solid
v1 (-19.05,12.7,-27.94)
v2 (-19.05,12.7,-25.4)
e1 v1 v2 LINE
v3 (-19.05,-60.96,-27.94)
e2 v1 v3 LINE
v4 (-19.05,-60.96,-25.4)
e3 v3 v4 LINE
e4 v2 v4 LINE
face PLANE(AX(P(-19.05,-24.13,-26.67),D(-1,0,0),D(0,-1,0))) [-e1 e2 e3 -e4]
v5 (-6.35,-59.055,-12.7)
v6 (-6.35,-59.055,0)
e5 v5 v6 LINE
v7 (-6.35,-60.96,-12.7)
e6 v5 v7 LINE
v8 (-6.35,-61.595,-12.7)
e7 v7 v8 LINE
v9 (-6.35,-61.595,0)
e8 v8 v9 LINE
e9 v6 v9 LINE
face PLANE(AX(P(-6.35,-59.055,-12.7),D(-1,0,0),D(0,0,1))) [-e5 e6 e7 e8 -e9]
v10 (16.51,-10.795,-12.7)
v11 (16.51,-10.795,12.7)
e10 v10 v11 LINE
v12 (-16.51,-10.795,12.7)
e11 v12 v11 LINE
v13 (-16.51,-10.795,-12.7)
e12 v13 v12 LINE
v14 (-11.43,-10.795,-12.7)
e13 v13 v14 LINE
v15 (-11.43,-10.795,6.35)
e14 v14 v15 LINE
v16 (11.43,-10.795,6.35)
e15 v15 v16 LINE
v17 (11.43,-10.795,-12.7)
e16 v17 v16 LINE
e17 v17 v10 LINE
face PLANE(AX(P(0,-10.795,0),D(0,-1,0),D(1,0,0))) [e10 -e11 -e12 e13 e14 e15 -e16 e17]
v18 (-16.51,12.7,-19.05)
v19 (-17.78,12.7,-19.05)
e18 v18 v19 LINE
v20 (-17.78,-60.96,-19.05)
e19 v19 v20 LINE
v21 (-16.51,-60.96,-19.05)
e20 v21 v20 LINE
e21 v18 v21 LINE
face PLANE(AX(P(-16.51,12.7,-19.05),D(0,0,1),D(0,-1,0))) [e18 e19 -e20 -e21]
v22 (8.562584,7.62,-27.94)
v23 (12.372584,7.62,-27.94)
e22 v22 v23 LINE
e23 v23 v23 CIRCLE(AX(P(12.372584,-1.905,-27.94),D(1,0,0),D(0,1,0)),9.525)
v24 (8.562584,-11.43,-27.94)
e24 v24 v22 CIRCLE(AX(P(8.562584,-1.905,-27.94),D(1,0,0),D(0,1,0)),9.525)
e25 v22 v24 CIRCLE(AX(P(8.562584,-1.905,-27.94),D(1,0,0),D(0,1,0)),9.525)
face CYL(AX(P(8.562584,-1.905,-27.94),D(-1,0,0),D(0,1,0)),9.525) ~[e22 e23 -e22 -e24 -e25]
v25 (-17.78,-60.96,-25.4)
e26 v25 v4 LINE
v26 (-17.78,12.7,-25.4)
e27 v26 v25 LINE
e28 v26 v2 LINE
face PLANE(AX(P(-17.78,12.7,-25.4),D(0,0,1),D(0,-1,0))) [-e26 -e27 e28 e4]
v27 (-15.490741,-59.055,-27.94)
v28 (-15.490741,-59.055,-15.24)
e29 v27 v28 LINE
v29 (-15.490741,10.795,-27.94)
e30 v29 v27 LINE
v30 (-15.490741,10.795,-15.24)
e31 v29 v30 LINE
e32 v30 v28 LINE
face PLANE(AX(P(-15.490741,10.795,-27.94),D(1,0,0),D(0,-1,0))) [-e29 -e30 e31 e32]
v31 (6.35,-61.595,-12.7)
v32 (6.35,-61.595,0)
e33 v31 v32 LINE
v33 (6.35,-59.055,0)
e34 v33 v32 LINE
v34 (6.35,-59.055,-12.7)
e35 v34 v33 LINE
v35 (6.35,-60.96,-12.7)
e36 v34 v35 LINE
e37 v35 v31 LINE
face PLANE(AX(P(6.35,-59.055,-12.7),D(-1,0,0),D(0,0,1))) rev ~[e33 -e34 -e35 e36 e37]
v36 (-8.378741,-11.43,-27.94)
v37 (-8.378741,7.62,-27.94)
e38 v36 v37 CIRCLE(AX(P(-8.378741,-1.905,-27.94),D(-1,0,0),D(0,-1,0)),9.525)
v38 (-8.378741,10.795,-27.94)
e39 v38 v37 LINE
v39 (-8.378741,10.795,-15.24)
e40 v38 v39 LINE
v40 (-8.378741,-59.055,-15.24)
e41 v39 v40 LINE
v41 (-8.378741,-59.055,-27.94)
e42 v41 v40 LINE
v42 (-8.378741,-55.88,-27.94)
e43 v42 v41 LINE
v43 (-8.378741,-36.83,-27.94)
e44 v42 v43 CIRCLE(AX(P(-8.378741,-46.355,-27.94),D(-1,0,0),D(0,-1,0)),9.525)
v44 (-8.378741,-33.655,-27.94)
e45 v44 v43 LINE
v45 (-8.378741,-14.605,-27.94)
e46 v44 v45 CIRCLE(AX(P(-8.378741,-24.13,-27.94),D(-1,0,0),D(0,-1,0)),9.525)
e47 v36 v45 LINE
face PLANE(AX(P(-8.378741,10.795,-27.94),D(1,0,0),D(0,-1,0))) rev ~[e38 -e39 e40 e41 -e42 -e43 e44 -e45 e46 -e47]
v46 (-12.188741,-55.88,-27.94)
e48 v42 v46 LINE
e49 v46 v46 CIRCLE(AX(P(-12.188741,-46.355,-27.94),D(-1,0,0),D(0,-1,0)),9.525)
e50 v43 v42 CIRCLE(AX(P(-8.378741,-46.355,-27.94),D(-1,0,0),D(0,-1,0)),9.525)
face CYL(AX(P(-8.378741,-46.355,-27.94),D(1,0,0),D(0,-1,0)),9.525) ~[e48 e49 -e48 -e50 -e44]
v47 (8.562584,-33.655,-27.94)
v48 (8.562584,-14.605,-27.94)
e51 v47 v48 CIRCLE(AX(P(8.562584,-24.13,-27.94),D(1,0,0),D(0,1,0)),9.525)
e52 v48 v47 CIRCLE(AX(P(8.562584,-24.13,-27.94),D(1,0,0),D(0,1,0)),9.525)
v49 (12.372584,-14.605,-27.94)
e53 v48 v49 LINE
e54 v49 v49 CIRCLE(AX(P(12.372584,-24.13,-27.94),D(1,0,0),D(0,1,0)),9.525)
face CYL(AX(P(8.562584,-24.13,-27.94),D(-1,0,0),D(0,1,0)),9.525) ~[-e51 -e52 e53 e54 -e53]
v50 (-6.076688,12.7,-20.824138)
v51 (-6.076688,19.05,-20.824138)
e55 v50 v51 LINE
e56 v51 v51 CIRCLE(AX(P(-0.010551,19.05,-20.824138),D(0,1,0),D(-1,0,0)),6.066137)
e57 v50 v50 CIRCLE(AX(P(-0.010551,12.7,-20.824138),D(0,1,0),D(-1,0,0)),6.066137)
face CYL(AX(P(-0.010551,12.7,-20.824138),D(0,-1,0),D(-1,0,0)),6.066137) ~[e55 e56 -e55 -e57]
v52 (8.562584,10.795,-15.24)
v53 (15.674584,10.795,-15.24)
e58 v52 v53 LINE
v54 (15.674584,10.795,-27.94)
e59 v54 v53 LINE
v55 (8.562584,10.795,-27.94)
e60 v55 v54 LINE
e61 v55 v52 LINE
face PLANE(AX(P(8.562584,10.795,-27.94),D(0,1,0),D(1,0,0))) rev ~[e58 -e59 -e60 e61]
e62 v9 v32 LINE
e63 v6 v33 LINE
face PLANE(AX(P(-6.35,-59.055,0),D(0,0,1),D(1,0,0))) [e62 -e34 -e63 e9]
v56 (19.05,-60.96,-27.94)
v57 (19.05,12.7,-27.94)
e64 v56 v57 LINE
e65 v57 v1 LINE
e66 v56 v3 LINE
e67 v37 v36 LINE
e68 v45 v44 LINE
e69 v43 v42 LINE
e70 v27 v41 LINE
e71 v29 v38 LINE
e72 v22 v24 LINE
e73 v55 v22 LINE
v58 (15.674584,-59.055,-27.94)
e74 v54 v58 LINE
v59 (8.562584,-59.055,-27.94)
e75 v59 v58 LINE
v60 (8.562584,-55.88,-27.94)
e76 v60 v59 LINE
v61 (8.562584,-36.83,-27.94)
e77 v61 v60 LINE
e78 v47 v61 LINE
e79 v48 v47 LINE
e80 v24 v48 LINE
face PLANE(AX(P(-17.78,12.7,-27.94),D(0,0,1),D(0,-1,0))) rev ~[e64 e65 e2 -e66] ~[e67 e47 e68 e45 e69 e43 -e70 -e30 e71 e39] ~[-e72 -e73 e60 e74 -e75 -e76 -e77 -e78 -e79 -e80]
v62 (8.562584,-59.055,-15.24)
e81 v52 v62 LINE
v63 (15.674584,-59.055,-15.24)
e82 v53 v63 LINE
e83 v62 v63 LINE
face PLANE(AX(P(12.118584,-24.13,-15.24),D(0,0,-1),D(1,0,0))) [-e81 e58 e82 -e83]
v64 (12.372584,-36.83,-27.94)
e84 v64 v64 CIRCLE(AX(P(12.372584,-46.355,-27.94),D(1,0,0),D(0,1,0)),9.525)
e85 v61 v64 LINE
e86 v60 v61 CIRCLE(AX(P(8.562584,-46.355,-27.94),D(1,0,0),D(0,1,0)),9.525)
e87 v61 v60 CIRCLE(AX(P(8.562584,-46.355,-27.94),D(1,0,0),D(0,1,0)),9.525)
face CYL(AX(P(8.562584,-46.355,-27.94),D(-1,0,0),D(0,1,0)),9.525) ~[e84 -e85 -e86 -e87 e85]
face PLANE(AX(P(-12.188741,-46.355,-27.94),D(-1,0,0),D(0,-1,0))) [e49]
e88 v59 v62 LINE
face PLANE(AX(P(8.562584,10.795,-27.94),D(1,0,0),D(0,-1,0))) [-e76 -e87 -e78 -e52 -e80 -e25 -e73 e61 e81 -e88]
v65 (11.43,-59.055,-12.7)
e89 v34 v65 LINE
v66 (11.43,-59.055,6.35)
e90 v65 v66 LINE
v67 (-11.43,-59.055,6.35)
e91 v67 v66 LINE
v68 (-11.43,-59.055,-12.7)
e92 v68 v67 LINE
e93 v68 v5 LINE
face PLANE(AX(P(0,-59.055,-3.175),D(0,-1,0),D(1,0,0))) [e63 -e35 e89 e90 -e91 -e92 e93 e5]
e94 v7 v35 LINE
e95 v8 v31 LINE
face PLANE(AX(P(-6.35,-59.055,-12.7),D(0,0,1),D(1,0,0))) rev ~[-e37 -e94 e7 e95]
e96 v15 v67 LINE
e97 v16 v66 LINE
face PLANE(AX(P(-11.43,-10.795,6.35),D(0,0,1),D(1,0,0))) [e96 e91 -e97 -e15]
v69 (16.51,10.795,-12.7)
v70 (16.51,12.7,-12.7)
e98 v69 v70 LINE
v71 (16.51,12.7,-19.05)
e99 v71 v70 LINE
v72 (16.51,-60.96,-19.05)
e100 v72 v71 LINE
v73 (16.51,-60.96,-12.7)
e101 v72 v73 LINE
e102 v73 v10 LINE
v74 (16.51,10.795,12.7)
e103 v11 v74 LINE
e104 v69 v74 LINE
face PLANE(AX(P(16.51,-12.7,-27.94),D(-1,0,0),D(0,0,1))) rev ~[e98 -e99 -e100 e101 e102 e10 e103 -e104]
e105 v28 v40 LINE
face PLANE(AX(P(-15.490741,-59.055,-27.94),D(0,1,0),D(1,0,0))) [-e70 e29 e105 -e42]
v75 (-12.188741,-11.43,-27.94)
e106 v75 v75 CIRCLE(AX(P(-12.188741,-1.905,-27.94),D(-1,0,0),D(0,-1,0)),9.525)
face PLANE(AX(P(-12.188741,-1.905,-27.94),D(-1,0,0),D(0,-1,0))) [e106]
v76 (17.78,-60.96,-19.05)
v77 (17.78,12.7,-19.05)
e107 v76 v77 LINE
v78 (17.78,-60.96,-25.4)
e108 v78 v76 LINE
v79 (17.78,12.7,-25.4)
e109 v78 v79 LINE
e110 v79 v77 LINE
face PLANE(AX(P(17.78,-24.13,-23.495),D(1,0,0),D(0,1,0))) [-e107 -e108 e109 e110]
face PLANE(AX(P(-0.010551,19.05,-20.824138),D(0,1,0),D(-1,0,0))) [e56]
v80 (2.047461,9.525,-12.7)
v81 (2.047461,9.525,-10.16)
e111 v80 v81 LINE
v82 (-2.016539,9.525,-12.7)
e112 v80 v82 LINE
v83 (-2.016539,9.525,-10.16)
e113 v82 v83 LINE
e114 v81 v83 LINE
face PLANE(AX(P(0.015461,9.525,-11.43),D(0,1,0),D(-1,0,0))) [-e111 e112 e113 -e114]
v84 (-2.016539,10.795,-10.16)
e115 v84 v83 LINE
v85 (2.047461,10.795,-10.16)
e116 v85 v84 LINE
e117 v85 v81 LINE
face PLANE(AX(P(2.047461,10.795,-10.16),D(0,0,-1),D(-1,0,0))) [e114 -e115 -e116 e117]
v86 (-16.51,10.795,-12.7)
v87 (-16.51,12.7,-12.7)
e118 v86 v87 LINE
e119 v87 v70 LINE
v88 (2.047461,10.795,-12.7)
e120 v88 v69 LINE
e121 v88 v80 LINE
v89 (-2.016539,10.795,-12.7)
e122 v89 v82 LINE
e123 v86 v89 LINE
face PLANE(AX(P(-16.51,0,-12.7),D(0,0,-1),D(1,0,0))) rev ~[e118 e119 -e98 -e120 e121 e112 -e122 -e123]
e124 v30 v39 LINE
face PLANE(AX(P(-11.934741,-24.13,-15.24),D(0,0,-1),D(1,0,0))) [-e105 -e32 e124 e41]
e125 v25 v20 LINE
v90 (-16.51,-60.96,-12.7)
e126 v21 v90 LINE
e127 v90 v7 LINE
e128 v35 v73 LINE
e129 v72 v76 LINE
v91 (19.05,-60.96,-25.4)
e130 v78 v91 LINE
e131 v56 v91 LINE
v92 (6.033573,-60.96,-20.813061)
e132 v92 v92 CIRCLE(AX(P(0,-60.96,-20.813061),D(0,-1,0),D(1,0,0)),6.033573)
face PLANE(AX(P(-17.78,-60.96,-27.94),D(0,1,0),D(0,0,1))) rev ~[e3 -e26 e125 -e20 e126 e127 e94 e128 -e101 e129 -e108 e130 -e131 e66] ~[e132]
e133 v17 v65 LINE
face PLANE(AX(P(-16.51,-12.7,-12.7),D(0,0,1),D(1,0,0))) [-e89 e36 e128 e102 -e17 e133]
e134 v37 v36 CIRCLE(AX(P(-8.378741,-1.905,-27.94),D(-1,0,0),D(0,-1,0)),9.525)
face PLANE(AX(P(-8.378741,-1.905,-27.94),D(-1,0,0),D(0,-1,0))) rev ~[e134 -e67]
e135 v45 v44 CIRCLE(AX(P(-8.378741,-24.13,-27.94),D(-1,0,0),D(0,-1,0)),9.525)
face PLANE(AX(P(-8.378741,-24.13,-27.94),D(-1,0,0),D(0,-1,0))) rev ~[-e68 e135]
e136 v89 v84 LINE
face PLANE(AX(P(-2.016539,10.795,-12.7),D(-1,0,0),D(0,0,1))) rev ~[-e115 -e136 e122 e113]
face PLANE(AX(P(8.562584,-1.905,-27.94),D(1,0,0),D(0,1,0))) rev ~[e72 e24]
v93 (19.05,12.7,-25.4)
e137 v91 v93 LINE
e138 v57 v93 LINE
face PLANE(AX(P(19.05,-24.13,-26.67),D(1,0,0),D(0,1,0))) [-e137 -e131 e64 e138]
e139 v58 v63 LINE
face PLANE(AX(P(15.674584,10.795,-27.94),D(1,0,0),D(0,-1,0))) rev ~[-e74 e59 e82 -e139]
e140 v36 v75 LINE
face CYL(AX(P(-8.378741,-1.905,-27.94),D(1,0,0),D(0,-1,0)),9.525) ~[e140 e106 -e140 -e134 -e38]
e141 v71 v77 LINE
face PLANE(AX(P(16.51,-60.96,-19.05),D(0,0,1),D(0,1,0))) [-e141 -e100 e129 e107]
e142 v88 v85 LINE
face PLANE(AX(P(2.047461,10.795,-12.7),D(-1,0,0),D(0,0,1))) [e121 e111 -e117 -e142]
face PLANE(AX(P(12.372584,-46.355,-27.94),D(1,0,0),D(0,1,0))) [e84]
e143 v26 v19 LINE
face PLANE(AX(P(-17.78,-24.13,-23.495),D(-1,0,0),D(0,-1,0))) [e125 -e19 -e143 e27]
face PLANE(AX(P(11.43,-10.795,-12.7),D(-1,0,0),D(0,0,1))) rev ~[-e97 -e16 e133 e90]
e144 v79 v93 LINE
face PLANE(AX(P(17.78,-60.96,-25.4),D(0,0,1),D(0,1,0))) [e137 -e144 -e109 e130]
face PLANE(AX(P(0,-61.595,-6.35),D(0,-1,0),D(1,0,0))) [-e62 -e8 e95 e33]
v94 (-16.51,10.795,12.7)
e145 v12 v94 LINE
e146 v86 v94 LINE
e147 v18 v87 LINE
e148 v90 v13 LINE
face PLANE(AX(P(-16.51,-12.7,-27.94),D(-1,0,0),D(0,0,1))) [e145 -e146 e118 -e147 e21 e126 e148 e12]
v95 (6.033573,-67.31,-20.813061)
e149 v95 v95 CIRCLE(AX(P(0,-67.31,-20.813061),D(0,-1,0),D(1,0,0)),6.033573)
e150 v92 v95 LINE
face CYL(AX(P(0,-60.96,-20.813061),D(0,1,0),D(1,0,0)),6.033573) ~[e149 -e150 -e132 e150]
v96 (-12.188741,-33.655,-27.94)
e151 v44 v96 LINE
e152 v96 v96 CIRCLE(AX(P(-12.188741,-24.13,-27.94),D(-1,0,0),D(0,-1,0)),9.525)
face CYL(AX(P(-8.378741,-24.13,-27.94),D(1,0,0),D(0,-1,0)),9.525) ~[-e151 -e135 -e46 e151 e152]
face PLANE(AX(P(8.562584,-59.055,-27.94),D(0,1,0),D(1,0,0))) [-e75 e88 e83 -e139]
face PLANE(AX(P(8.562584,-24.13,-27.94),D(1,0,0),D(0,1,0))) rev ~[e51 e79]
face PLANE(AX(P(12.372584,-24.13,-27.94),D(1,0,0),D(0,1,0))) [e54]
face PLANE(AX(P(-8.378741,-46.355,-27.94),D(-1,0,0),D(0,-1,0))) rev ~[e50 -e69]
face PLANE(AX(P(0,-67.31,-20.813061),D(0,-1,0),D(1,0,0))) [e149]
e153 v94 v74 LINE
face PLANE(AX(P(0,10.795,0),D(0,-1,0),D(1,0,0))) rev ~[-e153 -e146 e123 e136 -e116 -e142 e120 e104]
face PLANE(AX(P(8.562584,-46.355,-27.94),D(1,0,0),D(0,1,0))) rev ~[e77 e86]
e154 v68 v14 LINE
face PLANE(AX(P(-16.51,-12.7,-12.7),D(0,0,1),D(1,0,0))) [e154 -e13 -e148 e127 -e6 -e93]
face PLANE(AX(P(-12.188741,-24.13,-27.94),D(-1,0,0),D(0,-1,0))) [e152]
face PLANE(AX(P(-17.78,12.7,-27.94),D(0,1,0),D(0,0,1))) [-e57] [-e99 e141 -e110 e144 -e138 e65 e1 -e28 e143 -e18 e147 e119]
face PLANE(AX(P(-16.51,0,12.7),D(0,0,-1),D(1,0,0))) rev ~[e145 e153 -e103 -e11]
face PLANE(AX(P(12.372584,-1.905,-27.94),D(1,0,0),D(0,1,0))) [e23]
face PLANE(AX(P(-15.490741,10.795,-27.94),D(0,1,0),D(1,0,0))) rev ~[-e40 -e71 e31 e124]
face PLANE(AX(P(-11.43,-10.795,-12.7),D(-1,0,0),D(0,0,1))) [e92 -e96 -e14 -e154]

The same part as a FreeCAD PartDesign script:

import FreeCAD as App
import Part
import Sketcher

V = App.Vector
Q = App.Units.Quantity

doc = App.newDocument("Part")
params = doc.addObject("Spreadsheet::Sheet", "Params")
for row, (alias, value) in enumerate([
    ("sketch1_height", "1 in"),
    ("sketch1_width", "1.3 in"),
    ("pad1_length", "0.85 in"),
    ("sketch2_width", "0.9 in"),
    ("sketch2_height", "0.75 in"),
    ("pad2_length", "1.9 in"),
    ("sketch3_width", "1.3 in"),
    ("sketch3_height", "0.6 in"),
    ("pad3_length", "1 in"),
    ("sketch4_width", "1.3 in"),
    ("sketch4_height", "0.6 in"),
    ("pad4_length", "1.9 in"),
    ("sketch5_width", "0.5 in"),
    ("pad5_length", "0.1 in"),
    ("sketch6_width", "0.28 in"),
    ("sketch6_height", "2.75 in"),
    ("pocket1_length", "0.5 in"),
    ("pad6_length", "0.25 in"),
    ("sketch8_diameter", "0.75 in"),
    ("pad7_length", "0.15 in"),
    ("sketch9_diameter", "0.75 in"),
    ("pad8_length", "0.15 in"),
    ("sketch10_diameter", "0.75 in"),
    ("pad9_length", "0.15 in"),
    ("sketch11_diameter", "0.75 in"),
    ("pad10_length", "0.15 in"),
    ("sketch12_diameter", "0.75 in"),
    ("pad11_length", "0.15 in"),
    ("sketch13_diameter", "0.75 in"),
    ("pad12_length", "0.15 in"),
    ("pad13_length", "0.25 in"),
    ("sketch15_width", "2.9 in"),
    ("sketch15_height", "0.35 in"),
    ("pad14_length", "0.05 in"),
    ("sketch16_width", "2.9 in"),
    ("sketch16_height", "0.35 in"),
    ("pad15_length", "0.05 in"),
    ("sketch17_width", "2.9 in"),
    ("sketch17_height", "0.1 in"),
    ("pad16_length", "0.05 in"),
    ("sketch18_width", "2.9 in"),
    ("sketch18_height", "0.1 in"),
    ("pad17_length", "0.05 in"),
    ("sketch19_height", "0.1 in"),
    ("sketch19_width", "0.16 in"),
    ("pocket2_length", "0.05 in"),
], start=1):
    params.set(f"A{row}", alias)
    params.set(f"B{row}", "=" + value)
    params.setAlias(f"B{row}", alias)

body = doc.addObject("PartDesign::Body", "Body")

# Sketch on XZ plane
sketch1 = body.newObject("Sketcher::SketchObject", "Sketch")
sketch1.AttachmentSupport = (doc.getObject("XZ_Plane"), [""])
sketch1.MapMode = "FlatFace"
sketch1.addGeometry([
    Part.LineSegment(V(-16.51, 12.7, 0), V(-16.51, -12.7, 0)),
    Part.LineSegment(V(-16.51, -12.7, 0), V(16.51, -12.7, 0)),
    Part.LineSegment(V(16.51, -12.7, 0), V(16.51, 12.7, 0)),
    Part.LineSegment(V(16.51, 12.7, 0), V(-16.51, 12.7, 0)),
], False)
sketch1.addConstraint([
    Sketcher.Constraint("Coincident", 0, 2, 1, 1),
    Sketcher.Constraint("Coincident", 1, 2, 2, 1),
    Sketcher.Constraint("Coincident", 2, 2, 3, 1),
    Sketcher.Constraint("Coincident", 3, 2, 0, 1),
    Sketcher.Constraint("Vertical", 0),
    Sketcher.Constraint("Horizontal", 1),
    Sketcher.Constraint("Vertical", 2),
    Sketcher.Constraint("Horizontal", 3),
    Sketcher.Constraint("Symmetric", 0, 2, 2, 2, -1, 1),
    Sketcher.Constraint("DistanceY", 0, 2, 0, 1, Q("1 in")),
    Sketcher.Constraint("DistanceX", 1, 1, 1, 2, Q("1.3 in")),
])
sketch1.setExpression("Constraints[9]", "Params.sketch1_height")
sketch1.setExpression("Constraints[10]", "Params.sketch1_width")
pad1 = body.newObject("PartDesign::Pad", "Pad")
pad1.Profile = sketch1
pad1.setExpression("Length", "Params.pad1_length")
pad1.Midplane = True

# Sketch on XZ plane
sketch2 = body.newObject("Sketcher::SketchObject", "Sketch001")
sketch2.AttachmentSupport = (doc.getObject("XZ_Plane"), [""])
sketch2.MapMode = "FlatFace"
sketch2.AttachmentOffset = App.Placement(V(0, 0, 0.425 * 25.4), App.Rotation())
sketch2.addGeometry([
    Part.LineSegment(V(-11.43, 6.35, 0), V(-11.43, -12.7, 0)),
    Part.LineSegment(V(-11.43, -12.7, 0), V(11.43, -12.7, 0)),
    Part.LineSegment(V(11.43, -12.7, 0), V(11.43, 6.35, 0)),
    Part.LineSegment(V(11.43, 6.35, 0), V(-11.43, 6.35, 0)),
], False)
sketch2.addConstraint([
    Sketcher.Constraint("Coincident", 0, 2, 1, 1),
    Sketcher.Constraint("Coincident", 1, 2, 2, 1),
    Sketcher.Constraint("Coincident", 2, 2, 3, 1),
    Sketcher.Constraint("Coincident", 3, 2, 0, 1),
    Sketcher.Constraint("Vertical", 0),
    Sketcher.Constraint("Horizontal", 1),
    Sketcher.Constraint("Vertical", 2),
    Sketcher.Constraint("Horizontal", 3),
    Sketcher.Constraint("DistanceX", 1, 1, 1, 2, Q("0.9 in")),
    Sketcher.Constraint("DistanceY", 0, 2, 0, 1, Q("0.75 in")),
    Sketcher.Constraint("DistanceY", 0, 2, -1, 1, Q("0.5 in")),
    Sketcher.Constraint("DistanceX", 0, 2, -1, 1, Q("0.45 in")),
])
sketch2.setExpression("Constraints[8]", "Params.sketch2_width")
sketch2.setExpression("Constraints[9]", "Params.sketch2_height")
pad2 = body.newObject("PartDesign::Pad", "Pad001")
pad2.Profile = sketch2
pad2.setExpression("Length", "Params.pad2_length")

# Sketch on XZ plane
sketch3 = body.newObject("Sketcher::SketchObject", "Sketch002")
sketch3.AttachmentSupport = (doc.getObject("XZ_Plane"), [""])
sketch3.MapMode = "FlatFace"
sketch3.addGeometry([
    Part.LineSegment(V(-16.51, -12.7, 0), V(-16.51, -27.94, 0)),
    Part.LineSegment(V(-16.51, -27.94, 0), V(16.51, -27.94, 0)),
    Part.LineSegment(V(16.51, -27.94, 0), V(16.51, -12.7, 0)),
    Part.LineSegment(V(16.51, -12.7, 0), V(-16.51, -12.7, 0)),
], False)
sketch3.addConstraint([
    Sketcher.Constraint("Coincident", 0, 2, 1, 1),
    Sketcher.Constraint("Coincident", 1, 2, 2, 1),
    Sketcher.Constraint("Coincident", 2, 2, 3, 1),
    Sketcher.Constraint("Coincident", 3, 2, 0, 1),
    Sketcher.Constraint("Vertical", 0),
    Sketcher.Constraint("Horizontal", 1),
    Sketcher.Constraint("Vertical", 2),
    Sketcher.Constraint("Horizontal", 3),
    Sketcher.Constraint("DistanceX", 1, 1, 1, 2, Q("1.3 in")),
    Sketcher.Constraint("DistanceY", 0, 2, 0, 1, Q("0.6 in")),
    Sketcher.Constraint("DistanceY", 0, 2, -1, 1, Q("1.1 in")),
    Sketcher.Constraint("DistanceX", 0, 2, -1, 1, Q("0.65 in")),
])
sketch3.setExpression("Constraints[8]", "Params.sketch3_width")
sketch3.setExpression("Constraints[9]", "Params.sketch3_height")
pad3 = body.newObject("PartDesign::Pad", "Pad002")
pad3.Profile = sketch3
pad3.setExpression("Length", "Params.pad3_length")
pad3.Midplane = True

# Sketch on XZ plane
sketch4 = body.newObject("Sketcher::SketchObject", "Sketch003")
sketch4.AttachmentSupport = (doc.getObject("XZ_Plane"), [""])
sketch4.MapMode = "FlatFace"
sketch4.AttachmentOffset = App.Placement(V(0, 0, 0.5 * 25.4), App.Rotation())
sketch4.addGeometry([
    Part.LineSegment(V(-16.51, -12.7, 0), V(-16.51, -27.94, 0)),
    Part.LineSegment(V(-16.51, -27.94, 0), V(16.51, -27.94, 0)),
    Part.LineSegment(V(16.51, -27.94, 0), V(16.51, -12.7, 0)),
    Part.LineSegment(V(16.51, -12.7, 0), V(-16.51, -12.7, 0)),
], False)
sketch4.addConstraint([
    Sketcher.Constraint("Coincident", 0, 2, 1, 1),
    Sketcher.Constraint("Coincident", 1, 2, 2, 1),
    Sketcher.Constraint("Coincident", 2, 2, 3, 1),
    Sketcher.Constraint("Coincident", 3, 2, 0, 1),
    Sketcher.Constraint("Vertical", 0),
    Sketcher.Constraint("Horizontal", 1),
    Sketcher.Constraint("Vertical", 2),
    Sketcher.Constraint("Horizontal", 3),
    Sketcher.Constraint("DistanceX", 1, 1, 1, 2, Q("1.3 in")),
    Sketcher.Constraint("DistanceY", 0, 2, 0, 1, Q("0.6 in")),
    Sketcher.Constraint("DistanceY", 0, 2, -1, 1, Q("1.1 in")),
    Sketcher.Constraint("DistanceX", 0, 2, -1, 1, Q("0.65 in")),
])
sketch4.setExpression("Constraints[8]", "Params.sketch4_width")
sketch4.setExpression("Constraints[9]", "Params.sketch4_height")
pad4 = body.newObject("PartDesign::Pad", "Pad003")
pad4.Profile = sketch4
pad4.setExpression("Length", "Params.pad4_length")

# Sketch on XZ plane
sketch5 = body.newObject("Sketcher::SketchObject", "Sketch004")
sketch5.AttachmentSupport = (doc.getObject("XZ_Plane"), [""])
sketch5.MapMode = "FlatFace"
sketch5.AttachmentOffset = App.Placement(V(0, 0, 2.325 * 25.4), App.Rotation())
sketch5.addGeometry([
    Part.LineSegment(V(-6.35, 0, 0), V(-6.35, -12.7, 0)),
    Part.LineSegment(V(-6.35, -12.7, 0), V(6.35, -12.7, 0)),
    Part.LineSegment(V(6.35, -12.7, 0), V(6.35, 0, 0)),
    Part.LineSegment(V(6.35, 0, 0), V(-6.35, 0, 0)),
], False)
sketch5.addConstraint([
    Sketcher.Constraint("Coincident", 0, 2, 1, 1),
    Sketcher.Constraint("Coincident", 1, 2, 2, 1),
    Sketcher.Constraint("Coincident", 2, 2, 3, 1),
    Sketcher.Constraint("Coincident", 3, 2, 0, 1),
    Sketcher.Constraint("Vertical", 0),
    Sketcher.Constraint("Horizontal", 1),
    Sketcher.Constraint("Vertical", 2),
    Sketcher.Constraint("Horizontal", 3),
    Sketcher.Constraint("Symmetric", 2, 2, 3, 2, -1, 1),
    Sketcher.Constraint("Equal", 3, 0),
    Sketcher.Constraint("DistanceX", 1, 1, 1, 2, Q("0.5 in")),
])
sketch5.setExpression("Constraints[10]", "Params.sketch5_width")
pad5 = body.newObject("PartDesign::Pad", "Pad004")
pad5.Profile = sketch5
pad5.setExpression("Length", "Params.pad5_length")

# Sketch on XY plane
sketch6 = body.newObject("Sketcher::SketchObject", "Sketch005")
sketch6.AttachmentSupport = (doc.getObject("XY_Plane"), [""])
sketch6.MapMode = "FlatFace"
sketch6.AttachmentOffset = App.Placement(V(0, 0, -1.1 * 25.4), App.Rotation())
sketch6.addGeometry([
    Part.LineSegment(V(-15.490741, -59.055, 0), V(-15.490741, 10.795, 0)),  # 0
    Part.LineSegment(V(-15.490741, 10.795, 0), V(-8.378741, 10.795, 0)),  # 1
    Part.LineSegment(V(-8.378741, 10.795, 0), V(-8.378741, -59.055, 0)),  # 2
    Part.LineSegment(V(-8.378741, -59.055, 0), V(-15.490741, -59.055, 0)),  # 3
    Part.LineSegment(V(8.562584, -59.055, 0), V(8.562584, 10.795, 0)),  # 4
    Part.LineSegment(V(8.562584, 10.795, 0), V(15.674584, 10.795, 0)),  # 5
    Part.LineSegment(V(15.674584, 10.795, 0), V(15.674584, -59.055, 0)),  # 6
    Part.LineSegment(V(15.674584, -59.055, 0), V(8.562584, -59.055, 0)),  # 7
], False)
sketch6.addConstraint([
    Sketcher.Constraint("Coincident", 0, 2, 1, 1),
    Sketcher.Constraint("Coincident", 1, 2, 2, 1),
    Sketcher.Constraint("Coincident", 2, 2, 3, 1),
    Sketcher.Constraint("Coincident", 3, 2, 0, 1),
    Sketcher.Constraint("Coincident", 4, 2, 5, 1),
    Sketcher.Constraint("Coincident", 5, 2, 6, 1),
    Sketcher.Constraint("Coincident", 6, 2, 7, 1),
    Sketcher.Constraint("Coincident", 7, 2, 4, 1),
    Sketcher.Constraint("Vertical", 0),
    Sketcher.Constraint("Horizontal", 1),
    Sketcher.Constraint("Vertical", 2),
    Sketcher.Constraint("Horizontal", 3),
    Sketcher.Constraint("Vertical", 4),
    Sketcher.Constraint("Horizontal", 5),
    Sketcher.Constraint("Vertical", 6),
    Sketcher.Constraint("Horizontal", 7),
    Sketcher.Constraint("Horizontal", 1, 2, 4, 2),
    Sketcher.Constraint("Horizontal", 3, 2, 6, 2),
    Sketcher.Constraint("Equal", 3, 5),
    Sketcher.Constraint("DistanceX", 1, 1, 1, 2, Q("0.28 in")),
    Sketcher.Constraint("DistanceY", 0, 1, 0, 2, Q("2.75 in")),
    Sketcher.Constraint("DistanceY", -1, 1, 0, 2, Q("0.425 in")),
    Sketcher.Constraint("DistanceX", 0, 2, -1, 1, Q("15.490741 mm")),
    Sketcher.Constraint("DistanceX", -1, 1, 4, 2, Q("8.562584 mm")),
])
sketch6.setExpression("Constraints[19]", "Params.sketch6_width")
sketch6.setExpression("Constraints[20]", "Params.sketch6_height")
pocket1 = body.newObject("PartDesign::Pocket", "Pocket")
pocket1.Profile = sketch6
pocket1.setExpression("Length", "Params.pocket1_length")
pocket1.Reversed = True

# Sketch on XZ plane
sketch7 = body.newObject("Sketcher::SketchObject", "Sketch006")
sketch7.AttachmentSupport = (doc.getObject("XZ_Plane"), [""])
sketch7.MapMode = "FlatFace"
sketch7.AttachmentOffset = App.Placement(V(0, 0, 2.4 * 25.4), App.Rotation())
sketch7.addGeometry(Part.Circle(V(0, -20.813061, 0), V(0, 0, 1), 6.033573), False)
sketch7.addConstraint([
    Sketcher.Constraint("PointOnObject", 0, 3, -2),
    Sketcher.Constraint("Diameter", 0, Q("12.067146 mm")),
    Sketcher.Constraint("DistanceY", 0, 3, -1, 1, Q("20.813061 mm")),
])
pad6 = body.newObject("PartDesign::Pad", "Pad005")
pad6.Profile = sketch7
pad6.setExpression("Length", "Params.pad6_length")

# Sketch on YZ plane
sketch8 = body.newObject("Sketcher::SketchObject", "Sketch007")
sketch8.AttachmentSupport = (doc.getObject("YZ_Plane"), [""])
sketch8.MapMode = "FlatFace"
sketch8.AttachmentOffset = App.Placement(V(0, 0, -8.378741), App.Rotation())
sketch8.addGeometry(Part.Circle(V(-24.13, -27.94, 0), V(0, 0, 1), 9.525), False)
sketch8.addConstraint([
    Sketcher.Constraint("Diameter", 0, Q("0.75 in")),
    Sketcher.Constraint("DistanceY", 0, 3, -1, 1, Q("1.1 in")),
    Sketcher.Constraint("DistanceX", 0, 3, -1, 1, Q("0.95 in")),
])
sketch8.setExpression("Constraints[0]", "Params.sketch8_diameter")
pad7 = body.newObject("PartDesign::Pad", "Pad006")
pad7.Profile = sketch8
pad7.setExpression("Length", "Params.pad7_length")
pad7.Reversed = True

# Sketch on YZ plane
sketch9 = body.newObject("Sketcher::SketchObject", "Sketch008")
sketch9.AttachmentSupport = (doc.getObject("YZ_Plane"), [""])
sketch9.MapMode = "FlatFace"
sketch9.AttachmentOffset = App.Placement(V(0, 0, -8.378741), App.Rotation())
sketch9.addGeometry(Part.Circle(V(-46.355, -27.94, 0), V(0, 0, 1), 9.525), False)
sketch9.addConstraint([
    Sketcher.Constraint("Diameter", 0, Q("0.75 in")),
    Sketcher.Constraint("DistanceY", 0, 3, -1, 1, Q("1.1 in")),
    Sketcher.Constraint("DistanceX", 0, 3, -1, 1, Q("1.825 in")),
])
sketch9.setExpression("Constraints[0]", "Params.sketch9_diameter")
pad8 = body.newObject("PartDesign::Pad", "Pad007")
pad8.Profile = sketch9
pad8.setExpression("Length", "Params.pad8_length")
pad8.Reversed = True

# Sketch on YZ plane
sketch10 = body.newObject("Sketcher::SketchObject", "Sketch009")
sketch10.AttachmentSupport = (doc.getObject("YZ_Plane"), [""])
sketch10.MapMode = "FlatFace"
sketch10.AttachmentOffset = App.Placement(V(0, 0, -8.378741), App.Rotation())
sketch10.addGeometry(Part.Circle(V(-1.905, -27.94, 0), V(0, 0, 1), 9.525), False)
sketch10.addConstraint([
    Sketcher.Constraint("Diameter", 0, Q("0.75 in")),
    Sketcher.Constraint("DistanceY", 0, 3, -1, 1, Q("1.1 in")),
    Sketcher.Constraint("DistanceX", 0, 3, -1, 1, Q("0.075 in")),
])
sketch10.setExpression("Constraints[0]", "Params.sketch10_diameter")
pad9 = body.newObject("PartDesign::Pad", "Pad008")
pad9.Profile = sketch10
pad9.setExpression("Length", "Params.pad9_length")
pad9.Reversed = True

# Sketch on YZ plane
sketch11 = body.newObject("Sketcher::SketchObject", "Sketch010")
sketch11.AttachmentSupport = (doc.getObject("YZ_Plane"), [""])
sketch11.MapMode = "FlatFace"
sketch11.AttachmentOffset = App.Placement(V(0, 0, 8.562584), App.Rotation())
sketch11.addGeometry(Part.Circle(V(-24.13, -27.94, 0), V(0, 0, 1), 9.525), False)
sketch11.addConstraint([
    Sketcher.Constraint("Diameter", 0, Q("0.75 in")),
    Sketcher.Constraint("DistanceY", 0, 3, -1, 1, Q("1.1 in")),
    Sketcher.Constraint("DistanceX", 0, 3, -1, 1, Q("0.95 in")),
])
sketch11.setExpression("Constraints[0]", "Params.sketch11_diameter")
pad10 = body.newObject("PartDesign::Pad", "Pad009")
pad10.Profile = sketch11
pad10.setExpression("Length", "Params.pad10_length")

# Sketch on YZ plane
sketch12 = body.newObject("Sketcher::SketchObject", "Sketch011")
sketch12.AttachmentSupport = (doc.getObject("YZ_Plane"), [""])
sketch12.MapMode = "FlatFace"
sketch12.AttachmentOffset = App.Placement(V(0, 0, 8.562584), App.Rotation())
sketch12.addGeometry(Part.Circle(V(-1.905, -27.94, 0), V(0, 0, 1), 9.525), False)
sketch12.addConstraint([
    Sketcher.Constraint("Diameter", 0, Q("0.75 in")),
    Sketcher.Constraint("DistanceY", 0, 3, -1, 1, Q("1.1 in")),
    Sketcher.Constraint("DistanceX", 0, 3, -1, 1, Q("0.075 in")),
])
sketch12.setExpression("Constraints[0]", "Params.sketch12_diameter")
pad11 = body.newObject("PartDesign::Pad", "Pad010")
pad11.Profile = sketch12
pad11.setExpression("Length", "Params.pad11_length")

# Sketch on YZ plane
sketch13 = body.newObject("Sketcher::SketchObject", "Sketch012")
sketch13.AttachmentSupport = (doc.getObject("YZ_Plane"), [""])
sketch13.MapMode = "FlatFace"
sketch13.AttachmentOffset = App.Placement(V(0, 0, 8.562584), App.Rotation())
sketch13.addGeometry(Part.Circle(V(-46.355, -27.94, 0), V(0, 0, 1), 9.525), False)
sketch13.addConstraint([
    Sketcher.Constraint("Diameter", 0, Q("0.75 in")),
    Sketcher.Constraint("DistanceY", 0, 3, -1, 1, Q("1.1 in")),
    Sketcher.Constraint("DistanceX", 0, 3, -1, 1, Q("1.825 in")),
])
sketch13.setExpression("Constraints[0]", "Params.sketch13_diameter")
pad12 = body.newObject("PartDesign::Pad", "Pad011")
pad12.Profile = sketch13
pad12.setExpression("Length", "Params.pad12_length")

# Sketch on XZ plane
sketch14 = body.newObject("Sketcher::SketchObject", "Sketch013")
sketch14.AttachmentSupport = (doc.getObject("XZ_Plane"), [""])
sketch14.MapMode = "FlatFace"
sketch14.AttachmentOffset = App.Placement(V(0, 0, -0.5 * 25.4), App.Rotation())
sketch14.addGeometry(Part.Circle(V(-0.010551, -20.824138, 0), V(0, 0, 1), 6.066137), False)
sketch14.addConstraint([
    Sketcher.Constraint("Diameter", 0, Q("12.132274 mm")),
    Sketcher.Constraint("DistanceX", 0, 3, -1, 1, Q("0.010551 mm")),
    Sketcher.Constraint("DistanceY", 0, 3, -1, 1, Q("20.824138 mm")),
])
pad13 = body.newObject("PartDesign::Pad", "Pad012")
pad13.Profile = sketch14
pad13.setExpression("Length", "Params.pad13_length")
pad13.Reversed = True

# Sketch on YZ plane
sketch15 = body.newObject("Sketcher::SketchObject", "Sketch014")
sketch15.AttachmentSupport = (doc.getObject("YZ_Plane"), [""])
sketch15.MapMode = "FlatFace"
sketch15.AttachmentOffset = App.Placement(V(0, 0, 0.65 * 25.4), App.Rotation())
sketch15.addGeometry([
    Part.LineSegment(V(-60.96, -19.05, 0), V(-60.96, -27.94, 0)),
    Part.LineSegment(V(-60.96, -27.94, 0), V(12.7, -27.94, 0)),
    Part.LineSegment(V(12.7, -27.94, 0), V(12.7, -19.05, 0)),
    Part.LineSegment(V(12.7, -19.05, 0), V(-60.96, -19.05, 0)),
], False)
sketch15.addConstraint([
    Sketcher.Constraint("Coincident", 0, 2, 1, 1),
    Sketcher.Constraint("Coincident", 1, 2, 2, 1),
    Sketcher.Constraint("Coincident", 2, 2, 3, 1),
    Sketcher.Constraint("Coincident", 3, 2, 0, 1),
    Sketcher.Constraint("Vertical", 0),
    Sketcher.Constraint("Horizontal", 1),
    Sketcher.Constraint("Vertical", 2),
    Sketcher.Constraint("Horizontal", 3),
    Sketcher.Constraint("DistanceX", 1, 1, 1, 2, Q("2.9 in")),
    Sketcher.Constraint("DistanceY", 0, 2, 0, 1, Q("0.35 in")),
    Sketcher.Constraint("DistanceX", 0, 2, -1, 1, Q("2.4 in")),
    Sketcher.Constraint("DistanceY", 0, 2, -1, 1, Q("1.1 in")),
])
sketch15.setExpression("Constraints[8]", "Params.sketch15_width")
sketch15.setExpression("Constraints[9]", "Params.sketch15_height")
pad14 = body.newObject("PartDesign::Pad", "Pad013")
pad14.Profile = sketch15
pad14.setExpression("Length", "Params.pad14_length")

# Sketch on YZ plane
sketch16 = body.newObject("Sketcher::SketchObject", "Sketch015")
sketch16.AttachmentSupport = (doc.getObject("YZ_Plane"), [""])
sketch16.MapMode = "FlatFace"
sketch16.AttachmentOffset = App.Placement(V(0, 0, -0.65 * 25.4), App.Rotation())
sketch16.addGeometry([
    Part.LineSegment(V(12.7, -19.05, 0), V(12.7, -27.94, 0)),
    Part.LineSegment(V(12.7, -27.94, 0), V(-60.96, -27.94, 0)),
    Part.LineSegment(V(-60.96, -27.94, 0), V(-60.96, -19.05, 0)),
    Part.LineSegment(V(-60.96, -19.05, 0), V(12.7, -19.05, 0)),
], False)
sketch16.addConstraint([
    Sketcher.Constraint("Coincident", 0, 2, 1, 1),
    Sketcher.Constraint("Coincident", 1, 2, 2, 1),
    Sketcher.Constraint("Coincident", 2, 2, 3, 1),
    Sketcher.Constraint("Coincident", 3, 2, 0, 1),
    Sketcher.Constraint("Vertical", 0),
    Sketcher.Constraint("Horizontal", 1),
    Sketcher.Constraint("Vertical", 2),
    Sketcher.Constraint("Horizontal", 3),
    Sketcher.Constraint("DistanceX", 1, 2, 1, 1, Q("2.9 in")),
    Sketcher.Constraint("DistanceY", 0, 2, 0, 1, Q("0.35 in")),
    Sketcher.Constraint("DistanceX", -1, 1, 0, 2, Q("0.5 in")),
    Sketcher.Constraint("DistanceY", 0, 2, -1, 1, Q("1.1 in")),
])
sketch16.setExpression("Constraints[8]", "Params.sketch16_width")
sketch16.setExpression("Constraints[9]", "Params.sketch16_height")
pad15 = body.newObject("PartDesign::Pad", "Pad014")
pad15.Profile = sketch16
pad15.setExpression("Length", "Params.pad15_length")
pad15.Reversed = True

# Sketch on YZ plane
sketch17 = body.newObject("Sketcher::SketchObject", "Sketch016")
sketch17.AttachmentSupport = (doc.getObject("YZ_Plane"), [""])
sketch17.MapMode = "FlatFace"
sketch17.AttachmentOffset = App.Placement(V(0, 0, 0.7 * 25.4), App.Rotation())
sketch17.addGeometry([
    Part.LineSegment(V(-60.96, -25.4, 0), V(-60.96, -27.94, 0)),
    Part.LineSegment(V(-60.96, -27.94, 0), V(12.7, -27.94, 0)),
    Part.LineSegment(V(12.7, -27.94, 0), V(12.7, -25.4, 0)),
    Part.LineSegment(V(12.7, -25.4, 0), V(-60.96, -25.4, 0)),
], False)
sketch17.addConstraint([
    Sketcher.Constraint("Coincident", 0, 2, 1, 1),
    Sketcher.Constraint("Coincident", 1, 2, 2, 1),
    Sketcher.Constraint("Coincident", 2, 2, 3, 1),
    Sketcher.Constraint("Coincident", 3, 2, 0, 1),
    Sketcher.Constraint("Vertical", 0),
    Sketcher.Constraint("Horizontal", 1),
    Sketcher.Constraint("Vertical", 2),
    Sketcher.Constraint("Horizontal", 3),
    Sketcher.Constraint("DistanceX", 1, 1, 1, 2, Q("2.9 in")),
    Sketcher.Constraint("DistanceY", 0, 2, 0, 1, Q("0.1 in")),
    Sketcher.Constraint("DistanceY", 2, 2, -1, 1, Q("1 in")),
    Sketcher.Constraint("DistanceX", 0, 2, -1, 1, Q("2.4 in")),
])
sketch17.setExpression("Constraints[8]", "Params.sketch17_width")
sketch17.setExpression("Constraints[9]", "Params.sketch17_height")
pad16 = body.newObject("PartDesign::Pad", "Pad015")
pad16.Profile = sketch17
pad16.setExpression("Length", "Params.pad16_length")

# Sketch on YZ plane
sketch18 = body.newObject("Sketcher::SketchObject", "Sketch017")
sketch18.AttachmentSupport = (doc.getObject("YZ_Plane"), [""])
sketch18.MapMode = "FlatFace"
sketch18.AttachmentOffset = App.Placement(V(0, 0, -0.7 * 25.4), App.Rotation())
sketch18.addGeometry([
    Part.LineSegment(V(12.7, -25.4, 0), V(12.7, -27.94, 0)),
    Part.LineSegment(V(12.7, -27.94, 0), V(-60.96, -27.94, 0)),
    Part.LineSegment(V(-60.96, -27.94, 0), V(-60.96, -25.4, 0)),
    Part.LineSegment(V(-60.96, -25.4, 0), V(12.7, -25.4, 0)),
], False)
sketch18.addConstraint([
    Sketcher.Constraint("Coincident", 0, 2, 1, 1),
    Sketcher.Constraint("Coincident", 1, 2, 2, 1),
    Sketcher.Constraint("Coincident", 2, 2, 3, 1),
    Sketcher.Constraint("Coincident", 3, 2, 0, 1),
    Sketcher.Constraint("Vertical", 0),
    Sketcher.Constraint("Horizontal", 1),
    Sketcher.Constraint("Vertical", 2),
    Sketcher.Constraint("Horizontal", 3),
    Sketcher.Constraint("DistanceX", 1, 2, 1, 1, Q("2.9 in")),
    Sketcher.Constraint("DistanceY", 0, 2, 0, 1, Q("0.1 in")),
    Sketcher.Constraint("DistanceY", 2, 2, -1, 1, Q("1 in")),
    Sketcher.Constraint("DistanceX", -1, 1, 0, 2, Q("0.5 in")),
])
sketch18.setExpression("Constraints[8]", "Params.sketch18_width")
sketch18.setExpression("Constraints[9]", "Params.sketch18_height")
pad17 = body.newObject("PartDesign::Pad", "Pad016")
pad17.Profile = sketch18
pad17.setExpression("Length", "Params.pad17_length")
pad17.Reversed = True

# Sketch on XZ plane
sketch19 = body.newObject("Sketcher::SketchObject", "Sketch018")
sketch19.AttachmentSupport = (doc.getObject("XZ_Plane"), [""])
sketch19.MapMode = "FlatFace"
sketch19.AttachmentOffset = App.Placement(V(0, 0, -0.425 * 25.4), App.Rotation())
sketch19.addGeometry([
    Part.LineSegment(V(2.047461, -10.16, 0), V(2.047461, -12.7, 0)),
    Part.LineSegment(V(2.047461, -12.7, 0), V(-2.016539, -12.7, 0)),
    Part.LineSegment(V(-2.016539, -12.7, 0), V(-2.016539, -10.16, 0)),
    Part.LineSegment(V(-2.016539, -10.16, 0), V(2.047461, -10.16, 0)),
], False)
sketch19.addConstraint([
    Sketcher.Constraint("Coincident", 0, 2, 1, 1),
    Sketcher.Constraint("Coincident", 1, 2, 2, 1),
    Sketcher.Constraint("Coincident", 2, 2, 3, 1),
    Sketcher.Constraint("Coincident", 3, 2, 0, 1),
    Sketcher.Constraint("Vertical", 0),
    Sketcher.Constraint("Horizontal", 1),
    Sketcher.Constraint("Vertical", 2),
    Sketcher.Constraint("Horizontal", 3),
    Sketcher.Constraint("DistanceY", 0, 2, 0, 1, Q("0.1 in")),
    Sketcher.Constraint("DistanceX", 1, 2, 1, 1, Q("0.16 in")),
    Sketcher.Constraint("DistanceY", 0, 2, -1, 1, Q("0.5 in")),
    Sketcher.Constraint("DistanceX", -1, 1, 0, 2, Q("2.047461 mm")),
])
sketch19.setExpression("Constraints[8]", "Params.sketch19_height")
sketch19.setExpression("Constraints[9]", "Params.sketch19_width")
pocket2 = body.newObject("PartDesign::Pocket", "Pocket001")
pocket2.Profile = sketch19
pocket2.setExpression("Length", "Params.pocket2_length")
pocket2.Reversed = True

doc.recompute()
